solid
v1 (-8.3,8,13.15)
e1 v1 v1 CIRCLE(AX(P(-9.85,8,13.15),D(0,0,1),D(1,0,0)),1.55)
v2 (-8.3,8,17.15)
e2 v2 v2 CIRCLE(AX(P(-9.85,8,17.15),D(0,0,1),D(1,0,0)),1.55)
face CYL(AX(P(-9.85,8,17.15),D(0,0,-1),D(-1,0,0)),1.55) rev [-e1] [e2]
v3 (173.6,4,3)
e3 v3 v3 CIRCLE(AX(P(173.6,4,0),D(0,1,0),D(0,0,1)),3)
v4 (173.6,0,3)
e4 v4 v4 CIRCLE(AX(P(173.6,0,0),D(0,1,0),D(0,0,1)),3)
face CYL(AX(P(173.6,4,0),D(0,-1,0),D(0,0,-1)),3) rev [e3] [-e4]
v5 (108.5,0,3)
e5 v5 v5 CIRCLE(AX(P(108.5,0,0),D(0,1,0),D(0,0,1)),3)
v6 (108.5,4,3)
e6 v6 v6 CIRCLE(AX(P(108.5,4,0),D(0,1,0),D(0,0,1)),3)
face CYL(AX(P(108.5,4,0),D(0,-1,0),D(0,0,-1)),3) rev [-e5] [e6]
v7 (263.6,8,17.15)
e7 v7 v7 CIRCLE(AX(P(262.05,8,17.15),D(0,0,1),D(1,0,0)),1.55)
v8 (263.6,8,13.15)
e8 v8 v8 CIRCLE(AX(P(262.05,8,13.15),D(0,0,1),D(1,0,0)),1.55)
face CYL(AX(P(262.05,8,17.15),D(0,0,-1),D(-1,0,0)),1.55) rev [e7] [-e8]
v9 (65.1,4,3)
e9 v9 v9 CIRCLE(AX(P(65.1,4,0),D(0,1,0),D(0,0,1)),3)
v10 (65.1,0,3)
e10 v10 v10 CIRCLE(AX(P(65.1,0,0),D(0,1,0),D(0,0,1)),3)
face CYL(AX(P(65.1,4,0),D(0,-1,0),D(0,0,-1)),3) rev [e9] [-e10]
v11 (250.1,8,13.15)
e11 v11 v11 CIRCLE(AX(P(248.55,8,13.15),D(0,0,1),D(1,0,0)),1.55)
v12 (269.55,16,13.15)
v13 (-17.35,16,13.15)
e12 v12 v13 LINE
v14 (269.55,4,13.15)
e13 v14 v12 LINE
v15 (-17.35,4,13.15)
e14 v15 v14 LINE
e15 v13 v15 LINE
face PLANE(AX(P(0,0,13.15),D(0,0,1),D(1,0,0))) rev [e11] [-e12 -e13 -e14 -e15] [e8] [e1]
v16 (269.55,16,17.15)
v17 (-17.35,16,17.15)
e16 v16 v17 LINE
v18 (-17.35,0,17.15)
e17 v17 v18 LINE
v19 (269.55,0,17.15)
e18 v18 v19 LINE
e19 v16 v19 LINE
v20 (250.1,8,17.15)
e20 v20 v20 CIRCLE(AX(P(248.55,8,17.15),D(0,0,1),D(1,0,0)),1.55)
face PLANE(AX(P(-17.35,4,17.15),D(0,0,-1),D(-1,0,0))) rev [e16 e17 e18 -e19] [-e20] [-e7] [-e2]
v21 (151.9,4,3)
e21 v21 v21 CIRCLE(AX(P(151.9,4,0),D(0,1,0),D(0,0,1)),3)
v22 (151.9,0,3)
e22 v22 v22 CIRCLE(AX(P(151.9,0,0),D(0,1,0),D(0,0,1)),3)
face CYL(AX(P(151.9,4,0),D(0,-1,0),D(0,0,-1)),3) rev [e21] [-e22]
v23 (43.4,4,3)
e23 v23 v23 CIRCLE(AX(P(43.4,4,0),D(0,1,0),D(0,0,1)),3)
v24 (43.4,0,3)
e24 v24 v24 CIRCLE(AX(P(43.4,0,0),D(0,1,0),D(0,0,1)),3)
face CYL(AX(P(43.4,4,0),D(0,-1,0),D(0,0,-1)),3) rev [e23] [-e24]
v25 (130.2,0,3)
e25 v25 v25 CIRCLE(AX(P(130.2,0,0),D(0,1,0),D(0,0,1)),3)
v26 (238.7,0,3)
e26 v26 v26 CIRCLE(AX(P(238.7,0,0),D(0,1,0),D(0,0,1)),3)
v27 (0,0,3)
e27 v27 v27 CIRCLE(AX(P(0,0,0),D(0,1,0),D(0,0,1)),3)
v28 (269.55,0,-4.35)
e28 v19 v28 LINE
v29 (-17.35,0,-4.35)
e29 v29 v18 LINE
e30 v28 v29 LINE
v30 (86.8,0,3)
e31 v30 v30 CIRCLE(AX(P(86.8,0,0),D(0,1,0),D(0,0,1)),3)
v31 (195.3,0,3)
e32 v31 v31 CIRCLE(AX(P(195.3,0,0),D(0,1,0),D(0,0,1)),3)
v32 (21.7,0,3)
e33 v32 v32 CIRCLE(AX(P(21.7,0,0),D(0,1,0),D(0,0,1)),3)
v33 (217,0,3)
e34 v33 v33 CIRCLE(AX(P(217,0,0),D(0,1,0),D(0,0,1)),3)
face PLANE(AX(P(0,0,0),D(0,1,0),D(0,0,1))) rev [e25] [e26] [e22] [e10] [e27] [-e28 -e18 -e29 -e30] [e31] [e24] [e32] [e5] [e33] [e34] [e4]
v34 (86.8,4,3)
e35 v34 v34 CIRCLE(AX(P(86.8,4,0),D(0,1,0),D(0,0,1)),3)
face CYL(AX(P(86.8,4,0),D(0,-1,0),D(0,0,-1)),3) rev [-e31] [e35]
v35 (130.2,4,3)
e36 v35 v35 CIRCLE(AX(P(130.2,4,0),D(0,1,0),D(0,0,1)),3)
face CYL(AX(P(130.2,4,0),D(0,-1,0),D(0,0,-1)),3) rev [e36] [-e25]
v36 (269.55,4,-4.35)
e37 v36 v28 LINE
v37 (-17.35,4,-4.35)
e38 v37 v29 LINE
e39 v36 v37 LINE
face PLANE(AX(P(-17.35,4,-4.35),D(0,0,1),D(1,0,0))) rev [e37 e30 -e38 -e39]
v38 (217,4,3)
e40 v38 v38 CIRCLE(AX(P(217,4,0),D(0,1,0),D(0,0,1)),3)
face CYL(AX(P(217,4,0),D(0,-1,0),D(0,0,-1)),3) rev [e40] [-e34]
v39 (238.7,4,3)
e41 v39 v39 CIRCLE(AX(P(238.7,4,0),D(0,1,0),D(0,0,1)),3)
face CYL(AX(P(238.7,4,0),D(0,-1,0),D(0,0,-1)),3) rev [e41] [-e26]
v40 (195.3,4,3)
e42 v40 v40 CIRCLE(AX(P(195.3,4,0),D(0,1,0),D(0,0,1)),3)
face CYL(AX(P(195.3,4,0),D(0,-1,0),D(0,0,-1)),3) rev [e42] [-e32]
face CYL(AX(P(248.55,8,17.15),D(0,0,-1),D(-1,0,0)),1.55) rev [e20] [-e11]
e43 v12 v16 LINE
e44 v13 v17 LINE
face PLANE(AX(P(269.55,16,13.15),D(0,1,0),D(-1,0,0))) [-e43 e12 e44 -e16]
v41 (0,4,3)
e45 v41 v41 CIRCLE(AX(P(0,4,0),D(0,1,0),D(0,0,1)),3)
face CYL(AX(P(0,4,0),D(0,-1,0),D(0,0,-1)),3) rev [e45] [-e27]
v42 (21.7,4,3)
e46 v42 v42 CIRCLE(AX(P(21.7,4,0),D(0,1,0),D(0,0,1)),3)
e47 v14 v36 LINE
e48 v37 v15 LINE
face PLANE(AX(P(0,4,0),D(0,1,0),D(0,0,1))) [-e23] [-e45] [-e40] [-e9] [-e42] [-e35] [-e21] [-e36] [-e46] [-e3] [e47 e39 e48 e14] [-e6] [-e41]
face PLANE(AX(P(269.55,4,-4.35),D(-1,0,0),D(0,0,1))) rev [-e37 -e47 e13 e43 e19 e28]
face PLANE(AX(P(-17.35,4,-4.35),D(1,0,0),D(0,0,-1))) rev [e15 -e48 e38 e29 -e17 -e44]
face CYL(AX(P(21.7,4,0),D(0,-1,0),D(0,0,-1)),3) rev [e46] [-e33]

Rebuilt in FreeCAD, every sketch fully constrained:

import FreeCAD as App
import Part
import Sketcher

V = App.Vector
Q = App.Units.Quantity

doc = App.newDocument("Part")
body = doc.addObject("PartDesign::Body", "Body")

# Sketch on XZ plane
sketch1 = body.newObject("Sketcher::SketchObject", "Sketch")
sketch1.AttachmentSupport = (doc.getObject("XZ_Plane"), [""])
sketch1.MapMode = "FlatFace"
sketch1.addGeometry(Part.LineSegment(V(-17.4, -4.3, 0), V(-17.4, 17.1, 0)), False)
sketch1.addGeometry(Part.LineSegment(V(-17.4, 17.1, 0), V(269.6, 17.1, 0)), False)
sketch1.addGeometry(Part.LineSegment(V(269.6, 17.1, 0), V(269.6, -4.3, 0)), False)
sketch1.addGeometry(Part.LineSegment(V(269.6, -4.3, 0), V(-17.4, -4.3, 0)), False)
sketch1.addGeometry(Part.Circle(V(0, 0, 0), V(0, 0, 1), 3), False)
sketch1.addGeometry(Part.Circle(V(21.7, 0, 0), V(0, 0, 1), 3), False)
sketch1.addGeometry(Part.Circle(V(43.4, 0, 0), V(0, 0, 1), 3), False)
sketch1.addGeometry(Part.Circle(V(65.1, 0, 0), V(0, 0, 1), 3), False)
sketch1.addGeometry(Part.Circle(V(86.8, 0, 0), V(0, 0, 1), 3), False)
sketch1.addGeometry(Part.Circle(V(108.5, 0, 0), V(0, 0, 1), 3), False)
sketch1.addGeometry(Part.Circle(V(130.2, 0, 0), V(0, 0, 1), 3), False)
sketch1.addGeometry(Part.Circle(V(151.9, 0, 0), V(0, 0, 1), 3), False)
sketch1.addGeometry(Part.Circle(V(173.6, 0, 0), V(0, 0, 1), 3), False)
sketch1.addGeometry(Part.Circle(V(195.3, 0, 0), V(0, 0, 1), 3), False)
sketch1.addGeometry(Part.Circle(V(217, 0, 0), V(0, 0, 1), 3), False)
sketch1.addGeometry(Part.Circle(V(238.7, 0, 0), V(0, 0, 1), 3), False)
sketch1.addConstraint(Sketcher.Constraint("Coincident", 0, 2, 1, 1))
sketch1.addConstraint(Sketcher.Constraint("Coincident", 1, 2, 2, 1))
sketch1.addConstraint(Sketcher.Constraint("Coincident", 2, 2, 3, 1))
sketch1.addConstraint(Sketcher.Constraint("Coincident", 3, 2, 0, 1))
sketch1.addConstraint(Sketcher.Constraint("Vertical", 0))
sketch1.addConstraint(Sketcher.Constraint("Horizontal", 1))
sketch1.addConstraint(Sketcher.Constraint("Vertical", 2))
sketch1.addConstraint(Sketcher.Constraint("Horizontal", 3))
sketch1.addConstraint(Sketcher.Constraint("Coincident", 4, 3, -1, 1))
sketch1.addConstraint(Sketcher.Constraint("Equal", 4, 5))
sketch1.addConstraint(Sketcher.Constraint("Equal", 5, 6))
sketch1.addConstraint(Sketcher.Constraint("Equal", 6, 7))
sketch1.addConstraint(Sketcher.Constraint("Equal", 7, 8))
sketch1.addConstraint(Sketcher.Constraint("Equal", 8, 9))
sketch1.addConstraint(Sketcher.Constraint("Equal", 9, 10))
sketch1.addConstraint(Sketcher.Constraint("Equal", 10, 11))
sketch1.addConstraint(Sketcher.Constraint("Equal", 11, 12))
sketch1.addConstraint(Sketcher.Constraint("Equal", 12, 13))
sketch1.addConstraint(Sketcher.Constraint("Equal", 13, 14))
sketch1.addConstraint(Sketcher.Constraint("Equal", 14, 15))
sketch1.addConstraint(Sketcher.Constraint("PointOnObject", 5, 3, -1))
sketch1.addConstraint(Sketcher.Constraint("PointOnObject", 6, 3, -1))
sketch1.addConstraint(Sketcher.Constraint("PointOnObject", 7, 3, -1))
sketch1.addConstraint(Sketcher.Constraint("PointOnObject", 8, 3, -1))
sketch1.addConstraint(Sketcher.Constraint("PointOnObject", 9, 3, -1))
sketch1.addConstraint(Sketcher.Constraint("PointOnObject", 10, 3, -1))
sketch1.addConstraint(Sketcher.Constraint("PointOnObject", 11, 3, -1))
sketch1.addConstraint(Sketcher.Constraint("PointOnObject", 12, 3, -1))
sketch1.addConstraint(Sketcher.Constraint("PointOnObject", 13, 3, -1))
sketch1.addConstraint(Sketcher.Constraint("PointOnObject", 14, 3, -1))
sketch1.addConstraint(Sketcher.Constraint("PointOnObject", 15, 3, -1))
sketch1.addConstraint(Sketcher.Constraint("Diameter", 4, Q("6 mm")))
sketch1.addConstraint(Sketcher.Constraint("DistanceX", 1, 1, 1, 2, Q("286.9 mm")))
sketch1.addConstraint(Sketcher.Constraint("DistanceY", 0, 1, 0, 2, Q("21.5 mm")))
sketch1.addConstraint(Sketcher.Constraint("DistanceX", -1, 1, 14, 3, Q("217 mm")))
sketch1.addConstraint(Sketcher.Constraint("DistanceX", -1, 1, 5, 3, Q("21.7 mm")))
sketch1.addConstraint(Sketcher.Constraint("DistanceX", -1, 1, 6, 3, Q("43.4 mm")))
sketch1.addConstraint(Sketcher.Constraint("DistanceX", -1, 1, 7, 3, Q("65.1 mm")))
sketch1.addConstraint(Sketcher.Constraint("DistanceX", -1, 1, 8, 3, Q("86.8 mm")))
sketch1.addConstraint(Sketcher.Constraint("DistanceX", -1, 1, 9, 3, Q("108.5 mm")))
sketch1.addConstraint(Sketcher.Constraint("DistanceX", -1, 1, 10, 3, Q("130.2 mm")))
sketch1.addConstraint(Sketcher.Constraint("DistanceX", -1, 1, 11, 3, Q("151.9 mm")))
sketch1.addConstraint(Sketcher.Constraint("DistanceX", -1, 1, 12, 3, Q("173.6 mm")))
sketch1.addConstraint(Sketcher.Constraint("DistanceX", -1, 1, 13, 3, Q("195.3 mm")))
sketch1.addConstraint(Sketcher.Constraint("DistanceX", -1, 1, 15, 3, Q("238.7 mm")))
sketch1.addConstraint(Sketcher.Constraint("DistanceX", 0, 2, -1, 1, Q("17.35 mm")))
sketch1.addConstraint(Sketcher.Constraint("DistanceY", -1, 1, 0, 2, Q("17.15 mm")))
pad1 = body.newObject("PartDesign::Pad", "Pad")
pad1.Profile = sketch1
pad1.Length = 4
pad1.Reversed = True

# Sketch on XY plane
sketch2 = body.newObject("Sketcher::SketchObject", "Sketch001")
sketch2.AttachmentSupport = (doc.getObject("XY_Plane"), [""])
sketch2.MapMode = "FlatFace"
sketch2.AttachmentOffset = App.Placement(V(0, 0, 17.15), App.Rotation())
sketch2.addGeometry(Part.LineSegment(V(-17, 16, 0), V(-17, 4, 0)), False)
sketch2.addGeometry(Part.LineSegment(V(-17, 4, 0), V(270, 4, 0)), False)
sketch2.addGeometry(Part.LineSegment(V(270, 4, 0), V(270, 16, 0)), False)
sketch2.addGeometry(Part.LineSegment(V(270, 16, 0), V(-17, 16, 0)), False)
sketch2.addConstraint(Sketcher.Constraint("Coincident", 0, 2, 1, 1))
sketch2.addConstraint(Sketcher.Constraint("Coincident", 1, 2, 2, 1))
sketch2.addConstraint(Sketcher.Constraint("Coincident", 2, 2, 3, 1))
sketch2.addConstraint(Sketcher.Constraint("Coincident", 3, 2, 0, 1))
sketch2.addConstraint(Sketcher.Constraint("Vertical", 0))
sketch2.addConstraint(Sketcher.Constraint("Horizontal", 1))
sketch2.addConstraint(Sketcher.Constraint("Vertical", 2))
sketch2.addConstraint(Sketcher.Constraint("Horizontal", 3))
sketch2.addConstraint(Sketcher.Constraint("DistanceY", 0, 2, 0, 1, Q("12 mm")))
sketch2.addConstraint(Sketcher.Constraint("DistanceX", 1, 1, 1, 2, Q("286.9 mm")))
sketch2.addConstraint(Sketcher.Constraint("DistanceY", -1, 1, 0, 2, Q("4 mm")))
sketch2.addConstraint(Sketcher.Constraint("DistanceX", 0, 2, -1, 1, Q("17.35 mm")))
pad2 = body.newObject("PartDesign::Pad", "Pad001")
pad2.Profile = sketch2
pad2.Length = 4
pad2.Reversed = True

# Sketch on XY plane
sketch3 = body.newObject("Sketcher::SketchObject", "Sketch002")
sketch3.AttachmentSupport = (doc.getObject("XY_Plane"), [""])
sketch3.MapMode = "FlatFace"
sketch3.AttachmentOffset = App.Placement(V(0, 0, 13.15), App.Rotation())
sketch3.addGeometry(Part.Circle(V(262.1, 8, 0), V(0, 0, 1), 1.6), False)
sketch3.addGeometry(Part.Circle(V(248.6, 8, 0), V(0, 0, 1), 1.6), False)
sketch3.addGeometry(Part.Circle(V(-9.8, 8, 0), V(0, 0, 1), 1.6), False)
sketch3.addConstraint(Sketcher.Constraint("Equal", 0, 1))
sketch3.addConstraint(Sketcher.Constraint("Equal", 1, 2))
sketch3.addConstraint(Sketcher.Constraint("Horizontal", 0, 3, 1, 3))
sketch3.addConstraint(Sketcher.Constraint("Horizontal", 1, 3, 2, 3))
sketch3.addConstraint(Sketcher.Constraint("Diameter", 0, Q("3.1 mm")))
sketch3.addConstraint(Sketcher.Constraint("DistanceY", -1, 1, 0, 3, Q("8 mm")))
sketch3.addConstraint(Sketcher.Constraint("DistanceX", 1, 3, 0, 3, Q("13.5 mm")))
sketch3.addConstraint(Sketcher.Constraint("DistanceX", 2, 3, 1, 3, Q("258.4 mm")))
sketch3.addConstraint(Sketcher.Constraint("DistanceX", -1, 1, 0, 3, Q("262.05 mm")))
pocket1 = body.newObject("PartDesign::Pocket", "Pocket")
pocket1.Profile = sketch3
pocket1.Type = "ThroughAll"
pocket1.Reversed = True

doc.recompute()
